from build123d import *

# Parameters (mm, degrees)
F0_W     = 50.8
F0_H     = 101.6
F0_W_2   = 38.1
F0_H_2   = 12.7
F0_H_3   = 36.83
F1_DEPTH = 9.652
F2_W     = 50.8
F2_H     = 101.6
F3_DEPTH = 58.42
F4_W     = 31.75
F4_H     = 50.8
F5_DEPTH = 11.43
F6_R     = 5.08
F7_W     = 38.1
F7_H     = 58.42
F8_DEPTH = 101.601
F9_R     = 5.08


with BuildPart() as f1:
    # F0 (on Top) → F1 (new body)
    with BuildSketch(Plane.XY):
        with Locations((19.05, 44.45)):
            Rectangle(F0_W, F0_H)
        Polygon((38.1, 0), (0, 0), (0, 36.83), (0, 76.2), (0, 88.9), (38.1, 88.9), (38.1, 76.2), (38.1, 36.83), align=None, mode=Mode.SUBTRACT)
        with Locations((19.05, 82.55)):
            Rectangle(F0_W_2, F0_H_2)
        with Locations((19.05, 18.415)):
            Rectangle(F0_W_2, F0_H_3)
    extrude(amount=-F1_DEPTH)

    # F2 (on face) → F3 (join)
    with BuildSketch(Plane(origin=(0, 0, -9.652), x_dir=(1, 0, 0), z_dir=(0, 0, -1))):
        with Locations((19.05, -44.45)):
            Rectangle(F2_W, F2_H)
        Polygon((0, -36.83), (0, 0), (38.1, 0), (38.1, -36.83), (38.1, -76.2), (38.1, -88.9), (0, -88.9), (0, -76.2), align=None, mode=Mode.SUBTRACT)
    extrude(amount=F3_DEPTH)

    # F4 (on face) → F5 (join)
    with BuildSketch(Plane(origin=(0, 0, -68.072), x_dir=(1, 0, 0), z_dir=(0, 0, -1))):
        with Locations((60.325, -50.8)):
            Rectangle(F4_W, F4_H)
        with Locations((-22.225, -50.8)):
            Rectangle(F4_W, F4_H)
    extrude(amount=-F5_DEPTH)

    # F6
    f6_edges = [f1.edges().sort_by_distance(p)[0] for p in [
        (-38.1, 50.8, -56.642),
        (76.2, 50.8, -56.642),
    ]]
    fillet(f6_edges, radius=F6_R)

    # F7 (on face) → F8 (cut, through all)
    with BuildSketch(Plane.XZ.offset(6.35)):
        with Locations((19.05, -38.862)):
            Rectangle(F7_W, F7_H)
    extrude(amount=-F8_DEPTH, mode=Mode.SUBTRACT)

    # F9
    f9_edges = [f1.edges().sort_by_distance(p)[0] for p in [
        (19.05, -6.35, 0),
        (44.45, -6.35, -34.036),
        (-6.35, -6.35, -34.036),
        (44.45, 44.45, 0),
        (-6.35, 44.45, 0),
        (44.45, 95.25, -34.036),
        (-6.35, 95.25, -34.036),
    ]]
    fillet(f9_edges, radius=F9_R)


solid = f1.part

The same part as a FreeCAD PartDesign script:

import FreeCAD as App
import Part
import Sketcher
from FreeCAD import Vector
Q = App.Units.Quantity


def edges_at(feature, points):
    """Names of the edges that pass closest to the given points."""
    edges = feature.Shape.Edges
    near = lambda p: min(range(len(edges)), key=lambda i: edges[i].distToShape(Part.Vertex(*p))[0])
    return sorted({f"Edge{near(p) + 1}" for p in points})

doc = App.newDocument("Part")
body = doc.addObject("PartDesign::Body", "Body")

# Sketch on XY plane
sketch1 = body.newObject("Sketcher::SketchObject", "Sketch")
sketch1.AttachmentSupport = (doc.getObject("XY_Plane"), [""])
sketch1.MapMode = "FlatFace"
sketch1.addGeometry([
    Part.LineSegment(Vector(-6, 95, 0), Vector(-6, -6, 0)),  # 0
    Part.LineSegment(Vector(-6, -6, 0), Vector(44, -6, 0)),  # 1
    Part.LineSegment(Vector(44, -6, 0), Vector(44, 95, 0)),  # 2
    Part.LineSegment(Vector(44, 95, 0), Vector(-6, 95, 0)),  # 3
    Part.LineSegment(Vector(38, 76, 0), Vector(38, 37, 0)),  # 4
    Part.LineSegment(Vector(38, 37, 0), Vector(0, 37, 0)),  # 5
    Part.LineSegment(Vector(0, 37, 0), Vector(0, 76, 0)),  # 6
    Part.LineSegment(Vector(0, 76, 0), Vector(38, 76, 0)),  # 7
], False)
sketch1.addConstraint([
    Sketcher.Constraint("Coincident", 0, 2, 1, 1),
    Sketcher.Constraint("Coincident", 1, 2, 2, 1),
    Sketcher.Constraint("Coincident", 2, 2, 3, 1),
    Sketcher.Constraint("Coincident", 3, 2, 0, 1),
    Sketcher.Constraint("Coincident", 4, 2, 5, 1),
    Sketcher.Constraint("Coincident", 5, 2, 6, 1),
    Sketcher.Constraint("Coincident", 6, 2, 7, 1),
    Sketcher.Constraint("Coincident", 7, 2, 4, 1),
    Sketcher.Constraint("Vertical", 0),
    Sketcher.Constraint("Horizontal", 1),
    Sketcher.Constraint("Vertical", 2),
    Sketcher.Constraint("Horizontal", 3),
    Sketcher.Constraint("Vertical", 4),
    Sketcher.Constraint("Horizontal", 5),
    Sketcher.Constraint("Vertical", 6),
    Sketcher.Constraint("Horizontal", 7),
    Sketcher.Constraint("PointOnObject", 5, 2, -2),
    Sketcher.Constraint("DistanceX", 1, 1, 1, 2, Q("2 in")),
    Sketcher.Constraint("DistanceY", 0, 2, 0, 1, Q("4 in")),
    Sketcher.Constraint("DistanceX", 5, 2, 5, 1, Q("1.5 in")),
    Sketcher.Constraint("DistanceY", -1, 1, 6, 2, Q("3 in")),
    Sketcher.Constraint("DistanceY", 4, 2, 4, 1, Q("1.55 in")),
    Sketcher.Constraint("DistanceY", 1, 2, 4, 2, Q("1.7 in")),
    Sketcher.Constraint("DistanceX", 0, 2, -1, 1, Q("0.25 in")),
])
pad1 = body.newObject("PartDesign::Pad", "Pad")
pad1.Profile = sketch1
pad1.Length = Q("0.38 in")
pad1.Reversed = True

# Sketch on XY plane
sketch2 = body.newObject("Sketcher::SketchObject", "Sketch001")
sketch2.AttachmentSupport = (doc.getObject("XY_Plane"), [""])
sketch2.MapMode = "FlatFace"
sketch2.AttachmentOffset = App.Placement(Vector(0, 0, -0.38 * 25.4), App.Rotation())
sketch2.addGeometry([
    Part.LineSegment(Vector(-6, -6, 0), Vector(-6, 95, 0)),  # 0
    Part.LineSegment(Vector(-6, 95, 0), Vector(44, 95, 0)),  # 1
    Part.LineSegment(Vector(44, 95, 0), Vector(44, -6, 0)),  # 2
    Part.LineSegment(Vector(44, -6, 0), Vector(-6, -6, 0)),  # 3
    Part.LineSegment(Vector(0, 89, 0), Vector(0, 0, 0)),  # 4
    Part.LineSegment(Vector(0, 0, 0), Vector(38, 0, 0)),  # 5
    Part.LineSegment(Vector(38, 0, 0), Vector(38, 89, 0)),  # 6
    Part.LineSegment(Vector(38, 89, 0), Vector(0, 89, 0)),  # 7
], False)
sketch2.addConstraint([
    Sketcher.Constraint("Coincident", 0, 2, 1, 1),
    Sketcher.Constraint("Coincident", 1, 2, 2, 1),
    Sketcher.Constraint("Coincident", 2, 2, 3, 1),
    Sketcher.Constraint("Coincident", 3, 2, 0, 1),
    Sketcher.Constraint("Coincident", 4, 2, 5, 1),
    Sketcher.Constraint("Coincident", 5, 2, 6, 1),
    Sketcher.Constraint("Coincident", 6, 2, 7, 1),
    Sketcher.Constraint("Coincident", 7, 2, 4, 1),
    Sketcher.Constraint("Vertical", 0),
    Sketcher.Constraint("Horizontal", 1),
    Sketcher.Constraint("Vertical", 2),
    Sketcher.Constraint("Horizontal", 3),
    Sketcher.Constraint("Vertical", 4),
    Sketcher.Constraint("Horizontal", 5),
    Sketcher.Constraint("Vertical", 6),
    Sketcher.Constraint("Horizontal", 7),
    Sketcher.Constraint("Coincident", 4, 2, -1, 1),
    Sketcher.Constraint("DistanceX", 1, 1, 1, 2, Q("2 in")),
    Sketcher.Constraint("DistanceY", 0, 1, 0, 2, Q("4 in")),
    Sketcher.Constraint("DistanceX", 5, 1, 5, 2, Q("1.5 in")),
    Sketcher.Constraint("DistanceY", 4, 2, 4, 1, Q("3.5 in")),
    Sketcher.Constraint("DistanceX", 0, 2, -1, 1, Q("0.25 in")),
    Sketcher.Constraint("DistanceY", -1, 1, 0, 2, Q("3.75 in")),
])
pad2 = body.newObject("PartDesign::Pad", "Pad001")
pad2.Profile = sketch2
pad2.Length = Q("2.3 in")
pad2.Reversed = True

# Sketch on XY plane
sketch3 = body.newObject("Sketcher::SketchObject", "Sketch002")
sketch3.AttachmentSupport = (doc.getObject("XY_Plane"), [""])
sketch3.MapMode = "FlatFace"
sketch3.AttachmentOffset = App.Placement(Vector(0, 0, -2.68 * 25.4), App.Rotation())
sketch3.addGeometry([
    Part.LineSegment(Vector(44, 25, 0), Vector(44, 76, 0)),  # 0
    Part.LineSegment(Vector(44, 76, 0), Vector(76, 76, 0)),  # 1
    Part.LineSegment(Vector(76, 76, 0), Vector(76, 25, 0)),  # 2
    Part.LineSegment(Vector(76, 25, 0), Vector(44, 25, 0)),  # 3
    Part.LineSegment(Vector(-38, 25, 0), Vector(-38, 76, 0)),  # 4
    Part.LineSegment(Vector(-38, 76, 0), Vector(-6, 76, 0)),  # 5
    Part.LineSegment(Vector(-6, 76, 0), Vector(-6, 25, 0)),  # 6
    Part.LineSegment(Vector(-6, 25, 0), Vector(-38, 25, 0)),  # 7
], False)
sketch3.addConstraint([
    Sketcher.Constraint("Coincident", 0, 2, 1, 1),
    Sketcher.Constraint("Coincident", 1, 2, 2, 1),
    Sketcher.Constraint("Coincident", 2, 2, 3, 1),
    Sketcher.Constraint("Coincident", 3, 2, 0, 1),
    Sketcher.Constraint("Coincident", 4, 2, 5, 1),
    Sketcher.Constraint("Coincident", 5, 2, 6, 1),
    Sketcher.Constraint("Coincident", 6, 2, 7, 1),
    Sketcher.Constraint("Coincident", 7, 2, 4, 1),
    Sketcher.Constraint("Vertical", 0),
    Sketcher.Constraint("Horizontal", 1),
    Sketcher.Constraint("Vertical", 2),
    Sketcher.Constraint("Horizontal", 3),
    Sketcher.Constraint("Vertical", 4),
    Sketcher.Constraint("Horizontal", 5),
    Sketcher.Constraint("Vertical", 6),
    Sketcher.Constraint("Horizontal", 7),
    Sketcher.Constraint("Horizontal", 1, 2, 4, 2),
    Sketcher.Constraint("Horizontal", 3, 2, 6, 2),
    Sketcher.Constraint("Equal", 3, 5),
    Sketcher.Constraint("DistanceY", 0, 1, 0, 2, Q("2 in")),
    Sketcher.Constraint("DistanceY", -1, 1, 0, 2, Q("3 in")),
    Sketcher.Constraint("DistanceX", -1, 1, 1, 2, Q("3 in")),
    Sketcher.Constraint("DistanceX", 5, 2, 0, 2, Q("2 in")),
    Sketcher.Constraint("DistanceX", 1, 1, 1, 2, Q("1.25 in")),
])
pad3 = body.newObject("PartDesign::Pad", "Pad002")
pad3.Profile = sketch3
pad3.Length = Q("0.45 in")
doc.recompute()

fillet = body.newObject("PartDesign::Fillet", "Fillet")
fillet.Base = (pad3, edges_at(pad3, [(-38.1, 50.8, -56.642), (76.2, 50.8, -56.642)]))
fillet.Radius = Q("0.2 in")

# Sketch on XZ plane
sketch4 = body.newObject("Sketcher::SketchObject", "Sketch003")
sketch4.AttachmentSupport = (doc.getObject("XZ_Plane"), [""])
sketch4.MapMode = "FlatFace"
sketch4.AttachmentOffset = App.Placement(Vector(0, 0, 0.25 * 25.4), App.Rotation())
sketch4.addGeometry([
    Part.LineSegment(Vector(0, -10, 0), Vector(0, -68, 0)),
    Part.LineSegment(Vector(0, -68, 0), Vector(38, -68, 0)),
    Part.LineSegment(Vector(38, -68, 0), Vector(38, -10, 0)),
    Part.LineSegment(Vector(38, -10, 0), Vector(0, -10, 0)),
], False)
sketch4.addConstraint([
    Sketcher.Constraint("Coincident", 0, 2, 1, 1),
    Sketcher.Constraint("Coincident", 1, 2, 2, 1),
    Sketcher.Constraint("Coincident", 2, 2, 3, 1),
    Sketcher.Constraint("Coincident", 3, 2, 0, 1),
    Sketcher.Constraint("Vertical", 0),
    Sketcher.Constraint("Horizontal", 1),
    Sketcher.Constraint("Vertical", 2),
    Sketcher.Constraint("Horizontal", 3),
    Sketcher.Constraint("PointOnObject", 0, 2, -2),
    Sketcher.Constraint("DistanceX", 1, 1, 1, 2, Q("1.5 in")),
    Sketcher.Constraint("DistanceY", 0, 2, 0, 1, Q("2.3 in")),
    Sketcher.Constraint("DistanceY", 0, 2, -1, 1, Q("2.68 in")),
])
pocket1 = body.newObject("PartDesign::Pocket", "Pocket")
pocket1.Profile = sketch4
pocket1.Type = "ThroughAll"
doc.recompute()

fillet2 = body.newObject("PartDesign::Fillet", "Fillet001")
fillet2.Base = (pocket1, edges_at(pocket1, [
    (19.05, -6.35, 0),
    (44.45, -6.35, -34.036),
    (-6.35, -6.35, -34.036),
    (44.45, 44.45, 0),
    (-6.35, 44.45, 0),
    (44.45, 95.25, -34.036),
    (-6.35, 95.25, -34.036),
]))
fillet2.Radius = Q("0.2 in")

doc.recompute()
